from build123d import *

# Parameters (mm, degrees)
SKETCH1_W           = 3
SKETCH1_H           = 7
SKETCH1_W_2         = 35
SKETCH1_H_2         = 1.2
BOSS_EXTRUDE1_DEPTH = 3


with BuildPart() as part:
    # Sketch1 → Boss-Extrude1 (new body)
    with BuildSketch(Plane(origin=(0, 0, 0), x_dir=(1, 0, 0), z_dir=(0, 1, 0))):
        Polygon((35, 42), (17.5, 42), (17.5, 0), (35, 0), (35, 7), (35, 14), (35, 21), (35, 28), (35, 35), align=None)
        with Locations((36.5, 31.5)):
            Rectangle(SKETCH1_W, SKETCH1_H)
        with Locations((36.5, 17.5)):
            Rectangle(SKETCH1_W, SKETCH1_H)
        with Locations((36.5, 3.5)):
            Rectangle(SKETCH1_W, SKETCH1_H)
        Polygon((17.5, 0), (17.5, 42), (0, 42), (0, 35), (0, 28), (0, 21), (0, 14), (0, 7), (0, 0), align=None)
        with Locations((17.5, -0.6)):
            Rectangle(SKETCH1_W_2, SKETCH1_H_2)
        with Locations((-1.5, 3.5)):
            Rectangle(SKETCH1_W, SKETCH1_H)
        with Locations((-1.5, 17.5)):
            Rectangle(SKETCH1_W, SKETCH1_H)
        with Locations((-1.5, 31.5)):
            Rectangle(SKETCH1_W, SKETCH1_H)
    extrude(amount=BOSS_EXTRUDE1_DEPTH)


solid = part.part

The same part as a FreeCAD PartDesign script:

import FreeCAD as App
import Part
import Sketcher

V = App.Vector


def add_polygon(sketch, points):
    """Adds a closed chain of lines whose ends are joined by coincident constraints."""
    first, n = sketch.GeometryCount, len(points)
    for a, b in zip(points, points[1:] + points[:1]):
        sketch.addGeometry(Part.LineSegment(App.Vector(*a, 0), App.Vector(*b, 0)), False)
    for i in range(n):
        sketch.addConstraint(Sketcher.Constraint("Coincident", first + i, 2, first + (i + 1) % n, 1))

doc = App.newDocument("Part")
body = doc.addObject("PartDesign::Body", "Body")

# Sketch on XZ plane
sketch1 = body.newObject("Sketcher::SketchObject", "Sketch")
sketch1.AttachmentSupport = (doc.getObject("XZ_Plane"), [""])
sketch1.MapMode = "FlatFace"
add_polygon(sketch1, [(35, -42), (0, -42), (0, -35), (-3, -35), (-3, -28), (0, -28), (0, -21), (-3, -21), (-3, -14), (0, -14), (0, -7), (-3, -7), (-3, 0), (0, 0), (0, 1.2), (35, 1.2), (35, 0), (38, 0), (38, -7), (35, -7), (35, -14), (38, -14), (38, -21), (35, -21), (35, -28), (38, -28), (38, -35), (35, -35)])  # lines 0-27
sketch1.addConstraint([
    Sketcher.Constraint("Horizontal", 0),
    Sketcher.Constraint("Vertical", 1),
    Sketcher.Constraint("Horizontal", 2),
    Sketcher.Constraint("Vertical", 3),
    Sketcher.Constraint("Horizontal", 4),
    Sketcher.Constraint("Vertical", 5),
    Sketcher.Constraint("Horizontal", 6),
    Sketcher.Constraint("Vertical", 7),
    Sketcher.Constraint("Horizontal", 8),
    Sketcher.Constraint("Vertical", 9),
    Sketcher.Constraint("Horizontal", 10),
    Sketcher.Constraint("Vertical", 11),
    Sketcher.Constraint("Horizontal", 12),
    Sketcher.Constraint("Vertical", 13),
    Sketcher.Constraint("Horizontal", 14),
    Sketcher.Constraint("Vertical", 15),
    Sketcher.Constraint("Horizontal", 16),
    Sketcher.Constraint("Vertical", 17),
    Sketcher.Constraint("Horizontal", 18),
    Sketcher.Constraint("Vertical", 19),
    Sketcher.Constraint("Horizontal", 20),
    Sketcher.Constraint("Vertical", 21),
    Sketcher.Constraint("Horizontal", 22),
    Sketcher.Constraint("Vertical", 23),
    Sketcher.Constraint("Horizontal", 24),
    Sketcher.Constraint("Vertical", 25),
    Sketcher.Constraint("Horizontal", 26),
    Sketcher.Constraint("Vertical", 27),
    Sketcher.Constraint("Coincident", 12, 2, -1, 1),
    Sketcher.Constraint("PointOnObject", 0, 2, -2),
    Sketcher.Constraint("PointOnObject", 4, 2, -2),
    Sketcher.Constraint("PointOnObject", 8, 2, -2),
    Sketcher.Constraint("PointOnObject", 15, 2, -1),
    Sketcher.Constraint("Horizontal", 10, 2, 17, 2),
    Sketcher.Constraint("Horizontal", 8, 2, 19, 2),
    Sketcher.Constraint("Horizontal", 6, 2, 21, 2),
    Sketcher.Constraint("Horizontal", 4, 2, 23, 2),
    Sketcher.Constraint("Horizontal", 2, 2, 25, 2),
    Sketcher.Constraint("Vertical", 3, 2, 6, 2),
    Sketcher.Constraint("Vertical", 7, 2, 10, 2),
    Sketcher.Constraint("Vertical", 15, 2, 18, 2),
    Sketcher.Constraint("Vertical", 17, 2, 20, 2),
    Sketcher.Constraint("Vertical", 19, 2, 22, 2),
    Sketcher.Constraint("Vertical", 21, 2, 24, 2),
    Sketcher.Constraint("Vertical", 23, 2, 26, 2),
    Sketcher.Constraint("Equal", 12, 16),
    Sketcher.Constraint("Equal", 1, 3),
    Sketcher.Constraint("Equal", 3, 5),
    Sketcher.Constraint("Equal", 5, 7),
    Sketcher.Constraint("Equal", 7, 9),
    Sketcher.Constraint("Equal", 9, 11),
    Sketcher.Constraint("DistanceX", 0, 2, 0, 1, 35.0),
    Sketcher.Constraint("DistanceX", 2, 2, 2, 1, 3.0),
    Sketcher.Constraint("DistanceY", 1, 1, 1, 2, 7.0),
    Sketcher.Constraint("DistanceY", 13, 1, 13, 2, 1.2),
])
pad1 = body.newObject("PartDesign::Pad", "Pad")
pad1.Profile = sketch1
pad1.Length = 3
pad1.Reversed = True

doc.recompute()
